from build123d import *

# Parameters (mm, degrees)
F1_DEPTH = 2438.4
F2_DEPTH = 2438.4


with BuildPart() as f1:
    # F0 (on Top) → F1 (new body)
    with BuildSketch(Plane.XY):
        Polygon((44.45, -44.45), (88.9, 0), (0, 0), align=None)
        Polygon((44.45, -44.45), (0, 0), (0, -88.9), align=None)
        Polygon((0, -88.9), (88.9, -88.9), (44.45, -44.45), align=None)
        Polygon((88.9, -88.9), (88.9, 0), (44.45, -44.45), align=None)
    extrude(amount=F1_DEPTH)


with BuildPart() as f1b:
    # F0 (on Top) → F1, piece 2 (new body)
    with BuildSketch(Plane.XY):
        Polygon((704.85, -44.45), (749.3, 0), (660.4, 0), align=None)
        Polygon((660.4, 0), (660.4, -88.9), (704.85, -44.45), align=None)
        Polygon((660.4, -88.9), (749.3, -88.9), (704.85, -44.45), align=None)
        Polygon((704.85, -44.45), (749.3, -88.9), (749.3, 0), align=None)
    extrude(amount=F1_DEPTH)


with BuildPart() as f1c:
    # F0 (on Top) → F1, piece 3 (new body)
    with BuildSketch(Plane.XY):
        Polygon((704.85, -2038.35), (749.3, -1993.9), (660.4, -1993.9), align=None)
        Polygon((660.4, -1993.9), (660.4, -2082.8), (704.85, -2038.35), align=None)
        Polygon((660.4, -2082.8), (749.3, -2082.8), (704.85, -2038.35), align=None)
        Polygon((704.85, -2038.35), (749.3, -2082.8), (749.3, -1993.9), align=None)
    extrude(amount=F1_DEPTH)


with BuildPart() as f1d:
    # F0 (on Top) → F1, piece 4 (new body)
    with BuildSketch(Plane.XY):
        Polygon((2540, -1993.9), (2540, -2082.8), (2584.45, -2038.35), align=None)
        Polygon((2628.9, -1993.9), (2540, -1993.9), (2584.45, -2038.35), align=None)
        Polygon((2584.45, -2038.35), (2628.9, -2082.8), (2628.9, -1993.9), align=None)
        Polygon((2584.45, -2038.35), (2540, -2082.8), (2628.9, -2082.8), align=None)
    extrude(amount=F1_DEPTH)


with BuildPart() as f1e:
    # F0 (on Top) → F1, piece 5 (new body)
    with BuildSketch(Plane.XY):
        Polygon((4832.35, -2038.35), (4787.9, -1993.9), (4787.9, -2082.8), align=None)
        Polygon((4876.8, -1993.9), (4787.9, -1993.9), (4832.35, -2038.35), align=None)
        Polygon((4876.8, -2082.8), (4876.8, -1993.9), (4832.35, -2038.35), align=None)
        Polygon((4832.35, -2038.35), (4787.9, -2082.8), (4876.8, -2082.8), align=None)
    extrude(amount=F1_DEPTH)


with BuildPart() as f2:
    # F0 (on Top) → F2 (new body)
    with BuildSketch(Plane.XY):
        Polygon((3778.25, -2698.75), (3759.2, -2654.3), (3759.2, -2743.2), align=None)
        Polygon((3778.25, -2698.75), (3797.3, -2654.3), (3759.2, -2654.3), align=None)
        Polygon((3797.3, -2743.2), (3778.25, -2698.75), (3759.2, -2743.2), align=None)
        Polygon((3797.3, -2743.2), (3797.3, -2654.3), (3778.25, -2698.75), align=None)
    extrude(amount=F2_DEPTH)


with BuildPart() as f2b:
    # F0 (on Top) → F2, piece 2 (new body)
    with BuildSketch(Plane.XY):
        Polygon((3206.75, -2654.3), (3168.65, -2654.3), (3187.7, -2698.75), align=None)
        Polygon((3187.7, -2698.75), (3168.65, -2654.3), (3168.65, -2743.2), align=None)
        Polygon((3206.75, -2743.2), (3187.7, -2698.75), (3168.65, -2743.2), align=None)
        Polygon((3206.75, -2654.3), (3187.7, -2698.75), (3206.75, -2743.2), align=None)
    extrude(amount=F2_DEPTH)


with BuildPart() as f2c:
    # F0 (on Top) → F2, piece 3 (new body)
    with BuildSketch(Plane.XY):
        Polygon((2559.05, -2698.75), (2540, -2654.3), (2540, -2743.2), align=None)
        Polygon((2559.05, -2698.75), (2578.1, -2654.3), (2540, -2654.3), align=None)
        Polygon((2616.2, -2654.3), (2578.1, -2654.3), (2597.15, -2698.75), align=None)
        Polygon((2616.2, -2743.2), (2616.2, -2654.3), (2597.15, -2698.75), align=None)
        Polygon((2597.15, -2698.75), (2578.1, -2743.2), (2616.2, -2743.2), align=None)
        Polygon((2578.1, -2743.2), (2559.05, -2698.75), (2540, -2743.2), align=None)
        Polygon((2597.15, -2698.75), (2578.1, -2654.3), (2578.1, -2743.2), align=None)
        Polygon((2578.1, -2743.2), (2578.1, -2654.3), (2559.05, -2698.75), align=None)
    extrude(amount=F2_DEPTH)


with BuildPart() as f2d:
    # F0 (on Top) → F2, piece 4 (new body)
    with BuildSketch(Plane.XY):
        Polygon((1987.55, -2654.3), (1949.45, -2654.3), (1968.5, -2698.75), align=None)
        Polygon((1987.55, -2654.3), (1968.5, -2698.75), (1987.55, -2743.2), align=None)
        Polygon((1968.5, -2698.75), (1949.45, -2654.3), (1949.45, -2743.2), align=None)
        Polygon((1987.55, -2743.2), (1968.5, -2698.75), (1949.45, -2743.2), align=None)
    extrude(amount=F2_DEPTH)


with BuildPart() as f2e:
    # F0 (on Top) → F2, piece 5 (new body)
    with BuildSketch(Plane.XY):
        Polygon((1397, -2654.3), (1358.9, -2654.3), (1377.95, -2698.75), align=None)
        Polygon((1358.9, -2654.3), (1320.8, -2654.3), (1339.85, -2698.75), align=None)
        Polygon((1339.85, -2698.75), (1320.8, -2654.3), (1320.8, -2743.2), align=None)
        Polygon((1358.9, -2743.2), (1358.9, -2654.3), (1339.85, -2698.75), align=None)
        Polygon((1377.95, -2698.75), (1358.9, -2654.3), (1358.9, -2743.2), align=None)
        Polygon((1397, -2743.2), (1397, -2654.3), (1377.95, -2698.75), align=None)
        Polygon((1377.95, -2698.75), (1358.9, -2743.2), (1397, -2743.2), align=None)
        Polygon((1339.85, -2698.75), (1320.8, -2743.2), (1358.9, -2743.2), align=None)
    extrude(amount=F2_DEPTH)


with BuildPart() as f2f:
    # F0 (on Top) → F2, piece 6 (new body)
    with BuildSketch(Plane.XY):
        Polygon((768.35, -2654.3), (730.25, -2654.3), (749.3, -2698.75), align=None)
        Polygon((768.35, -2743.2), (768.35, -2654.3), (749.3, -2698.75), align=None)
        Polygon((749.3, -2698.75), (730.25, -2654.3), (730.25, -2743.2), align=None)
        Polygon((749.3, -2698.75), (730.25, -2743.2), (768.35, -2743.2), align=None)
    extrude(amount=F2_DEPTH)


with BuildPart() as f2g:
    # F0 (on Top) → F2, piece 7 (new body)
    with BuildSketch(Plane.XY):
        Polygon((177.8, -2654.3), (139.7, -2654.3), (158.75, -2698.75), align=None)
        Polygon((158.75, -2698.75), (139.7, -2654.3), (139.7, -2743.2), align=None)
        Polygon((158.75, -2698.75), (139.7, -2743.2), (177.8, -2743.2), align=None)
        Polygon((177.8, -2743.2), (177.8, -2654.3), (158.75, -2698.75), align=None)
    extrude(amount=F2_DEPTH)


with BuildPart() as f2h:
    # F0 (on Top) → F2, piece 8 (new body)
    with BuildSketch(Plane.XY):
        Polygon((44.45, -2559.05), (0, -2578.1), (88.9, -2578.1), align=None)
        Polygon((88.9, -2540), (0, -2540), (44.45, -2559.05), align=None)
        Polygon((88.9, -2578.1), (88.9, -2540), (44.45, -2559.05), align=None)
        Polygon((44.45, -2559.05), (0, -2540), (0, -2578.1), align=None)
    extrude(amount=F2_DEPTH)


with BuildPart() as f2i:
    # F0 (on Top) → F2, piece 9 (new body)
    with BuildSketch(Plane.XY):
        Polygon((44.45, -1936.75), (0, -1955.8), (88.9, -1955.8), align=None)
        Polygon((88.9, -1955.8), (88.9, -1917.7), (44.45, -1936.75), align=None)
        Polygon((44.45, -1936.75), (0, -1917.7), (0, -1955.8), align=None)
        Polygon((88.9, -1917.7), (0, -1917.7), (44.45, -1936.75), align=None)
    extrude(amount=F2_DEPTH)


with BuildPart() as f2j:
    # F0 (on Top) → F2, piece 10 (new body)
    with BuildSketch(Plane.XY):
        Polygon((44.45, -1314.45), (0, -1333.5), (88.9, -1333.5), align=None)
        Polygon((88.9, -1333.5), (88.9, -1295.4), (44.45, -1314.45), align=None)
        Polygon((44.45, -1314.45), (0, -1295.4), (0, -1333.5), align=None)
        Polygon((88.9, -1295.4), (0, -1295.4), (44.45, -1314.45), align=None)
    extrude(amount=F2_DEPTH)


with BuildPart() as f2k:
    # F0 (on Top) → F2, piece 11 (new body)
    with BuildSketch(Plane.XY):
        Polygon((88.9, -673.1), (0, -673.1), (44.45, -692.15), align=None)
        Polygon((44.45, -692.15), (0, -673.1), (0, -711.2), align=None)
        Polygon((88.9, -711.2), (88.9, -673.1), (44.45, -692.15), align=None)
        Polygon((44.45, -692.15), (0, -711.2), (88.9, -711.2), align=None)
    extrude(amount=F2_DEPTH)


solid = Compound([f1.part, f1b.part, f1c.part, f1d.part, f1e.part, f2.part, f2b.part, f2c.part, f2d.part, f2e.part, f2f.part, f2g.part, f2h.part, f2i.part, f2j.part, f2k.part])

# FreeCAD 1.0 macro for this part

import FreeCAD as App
import Part
import Sketcher

V = App.Vector
Q = App.Units.Quantity

doc = App.newDocument("Part")
params = doc.addObject("Spreadsheet::Sheet", "Params")
for row, (alias, value) in enumerate([
    ("sketch1_width", "3.5 in"),
    ("pad1_length", "96 in"),
    ("sketch2_width", "3.5 in"),
    ("pad2_length", "96 in"),
    ("sketch3_width", "3.5 in"),
    ("pad3_length", "96 in"),
    ("sketch4_width", "3.5 in"),
    ("pad4_length", "96 in"),
    ("sketch5_width", "3.5 in"),
    ("pad5_length", "96 in"),
    ("sketch6_width", "1.5 in"),
    ("sketch6_height", "3.5 in"),
    ("pad6_length", "96 in"),
    ("sketch7_width", "1.5 in"),
    ("sketch7_height", "3.5 in"),
    ("pad7_length", "96 in"),
    ("sketch8_width", "3 in"),
    ("sketch8_height", "3.5 in"),
    ("pad8_length", "96 in"),
    ("sketch9_width", "1.5 in"),
    ("sketch9_height", "3.5 in"),
    ("pad9_length", "96 in"),
    ("sketch10_width", "3 in"),
    ("sketch10_height", "3.5 in"),
    ("pad10_length", "96 in"),
    ("sketch11_width", "1.5 in"),
    ("sketch11_height", "3.5 in"),
    ("pad11_length", "96 in"),
    ("sketch12_width", "1.5 in"),
    ("sketch12_height", "3.5 in"),
    ("pad12_length", "96 in"),
    ("sketch13_width", "3.5 in"),
    ("sketch13_height", "1.5 in"),
    ("pad13_length", "96 in"),
    ("sketch14_width", "3.5 in"),
    ("sketch14_height", "1.5 in"),
    ("pad14_length", "96 in"),
    ("sketch15_width", "3.5 in"),
    ("sketch15_height", "1.5 in"),
    ("pad15_length", "96 in"),
    ("sketch16_width", "3.5 in"),
    ("sketch16_height", "1.5 in"),
    ("pad16_length", "96 in"),
], start=1):
    params.set(f"A{row}", alias)
    params.set(f"B{row}", "=" + value)
    params.setAlias(f"B{row}", alias)

body = doc.addObject("PartDesign::Body", "Body")

# Sketch on XY plane
sketch1 = doc.addObject("Sketcher::SketchObject", "Sketch")
body.addObject(sketch1)
sketch1.AttachmentSupport = (doc.XY_Plane, [""])
sketch1.MapMode = "FlatFace"
sketch1.addGeometry([
    Part.LineSegment(V(89, 0, 0), V(0, 0, 0)),
    Part.LineSegment(V(0, 0, 0), V(0, -89, 0)),
    Part.LineSegment(V(0, -89, 0), V(89, -89, 0)),
    Part.LineSegment(V(89, -89, 0), V(89, 0, 0)),
], False)
sketch1.addConstraint([
    Sketcher.Constraint("Coincident", 0, 2, 1, 1),
    Sketcher.Constraint("Coincident", 1, 2, 2, 1),
    Sketcher.Constraint("Coincident", 2, 2, 3, 1),
    Sketcher.Constraint("Coincident", 3, 2, 0, 1),
    Sketcher.Constraint("Horizontal", 0),
    Sketcher.Constraint("Vertical", 1),
    Sketcher.Constraint("Horizontal", 2),
    Sketcher.Constraint("Vertical", 3),
    Sketcher.Constraint("Coincident", 0, 2, -1, 1),
    Sketcher.Constraint("Equal", 2, 1),
    Sketcher.Constraint("DistanceX", 0, 2, 0, 1, Q("3.5 in")),
])
sketch1.setExpression("Constraints[10]", "Params.sketch1_width")
pad1 = doc.addObject("PartDesign::Pad", "Pad")
body.addObject(pad1)
pad1.Profile = sketch1
pad1.setExpression("Length", "Params.pad1_length")
body2 = doc.addObject("PartDesign::Body", "Body001")

# Sketch on XY plane
sketch2 = doc.addObject("Sketcher::SketchObject", "Sketch001")
body2.addObject(sketch2)
sketch2.AttachmentSupport = (doc.getObject("XY_Plane001"), [""])
sketch2.MapMode = "FlatFace"
sketch2.addGeometry([
    Part.LineSegment(V(749, 0, 0), V(660, 0, 0)),
    Part.LineSegment(V(660, 0, 0), V(660, -89, 0)),
    Part.LineSegment(V(660, -89, 0), V(749, -89, 0)),
    Part.LineSegment(V(749, -89, 0), V(749, 0, 0)),
], False)
sketch2.addConstraint([
    Sketcher.Constraint("Coincident", 0, 2, 1, 1),
    Sketcher.Constraint("Coincident", 1, 2, 2, 1),
    Sketcher.Constraint("Coincident", 2, 2, 3, 1),
    Sketcher.Constraint("Coincident", 3, 2, 0, 1),
    Sketcher.Constraint("Horizontal", 0),
    Sketcher.Constraint("Vertical", 1),
    Sketcher.Constraint("Horizontal", 2),
    Sketcher.Constraint("Vertical", 3),
    Sketcher.Constraint("PointOnObject", 0, 2, -1),
    Sketcher.Constraint("Equal", 2, 1),
    Sketcher.Constraint("DistanceX", 0, 2, 0, 1, Q("3.5 in")),
    Sketcher.Constraint("DistanceX", -1, 1, 0, 2, Q("26 in")),
])
sketch2.setExpression("Constraints[10]", "Params.sketch2_width")
pad2 = doc.addObject("PartDesign::Pad", "Pad001")
body2.addObject(pad2)
pad2.Profile = sketch2
pad2.setExpression("Length", "Params.pad2_length")
body3 = doc.addObject("PartDesign::Body", "Body002")

# Sketch on XY plane
sketch3 = doc.addObject("Sketcher::SketchObject", "Sketch002")
body3.addObject(sketch3)
sketch3.AttachmentSupport = (doc.getObject("XY_Plane002"), [""])
sketch3.MapMode = "FlatFace"
sketch3.addGeometry([
    Part.LineSegment(V(749, -1994, 0), V(660, -1994, 0)),
    Part.LineSegment(V(660, -1994, 0), V(660, -2083, 0)),
    Part.LineSegment(V(660, -2083, 0), V(749, -2083, 0)),
    Part.LineSegment(V(749, -2083, 0), V(749, -1994, 0)),
], False)
sketch3.addConstraint([
    Sketcher.Constraint("Coincident", 0, 2, 1, 1),
    Sketcher.Constraint("Coincident", 1, 2, 2, 1),
    Sketcher.Constraint("Coincident", 2, 2, 3, 1),
    Sketcher.Constraint("Coincident", 3, 2, 0, 1),
    Sketcher.Constraint("Horizontal", 0),
    Sketcher.Constraint("Vertical", 1),
    Sketcher.Constraint("Horizontal", 2),
    Sketcher.Constraint("Vertical", 3),
    Sketcher.Constraint("Equal", 2, 1),
    Sketcher.Constraint("DistanceX", 0, 2, 0, 1, Q("3.5 in")),
    Sketcher.Constraint("DistanceX", -1, 1, 0, 2, Q("26 in")),
    Sketcher.Constraint("DistanceY", 1, 2, -1, 1, Q("82 in")),
])
sketch3.setExpression("Constraints[9]", "Params.sketch3_width")
pad3 = doc.addObject("PartDesign::Pad", "Pad002")
body3.addObject(pad3)
pad3.Profile = sketch3
pad3.setExpression("Length", "Params.pad3_length")
body4 = doc.addObject("PartDesign::Body", "Body003")

# Sketch on XY plane
sketch4 = doc.addObject("Sketcher::SketchObject", "Sketch003")
body4.addObject(sketch4)
sketch4.AttachmentSupport = (doc.getObject("XY_Plane003"), [""])
sketch4.MapMode = "FlatFace"
sketch4.addGeometry([
    Part.LineSegment(V(2540, -1994, 0), V(2540, -2083, 0)),
    Part.LineSegment(V(2540, -2083, 0), V(2629, -2083, 0)),
    Part.LineSegment(V(2629, -2083, 0), V(2629, -1994, 0)),
    Part.LineSegment(V(2629, -1994, 0), V(2540, -1994, 0)),
], False)
sketch4.addConstraint([
    Sketcher.Constraint("Coincident", 0, 2, 1, 1),
    Sketcher.Constraint("Coincident", 1, 2, 2, 1),
    Sketcher.Constraint("Coincident", 2, 2, 3, 1),
    Sketcher.Constraint("Coincident", 3, 2, 0, 1),
    Sketcher.Constraint("Vertical", 0),
    Sketcher.Constraint("Horizontal", 1),
    Sketcher.Constraint("Vertical", 2),
    Sketcher.Constraint("Horizontal", 3),
    Sketcher.Constraint("Equal", 3, 0),
    Sketcher.Constraint("DistanceX", 1, 1, 1, 2, Q("3.5 in")),
    Sketcher.Constraint("DistanceX", -1, 1, 0, 2, Q("100 in")),
    Sketcher.Constraint("DistanceY", 0, 2, -1, 1, Q("82 in")),
])
sketch4.setExpression("Constraints[9]", "Params.sketch4_width")
pad4 = doc.addObject("PartDesign::Pad", "Pad003")
body4.addObject(pad4)
pad4.Profile = sketch4
pad4.setExpression("Length", "Params.pad4_length")
body5 = doc.addObject("PartDesign::Body", "Body004")

# Sketch on XY plane
sketch5 = doc.addObject("Sketcher::SketchObject", "Sketch004")
body5.addObject(sketch5)
sketch5.AttachmentSupport = (doc.getObject("XY_Plane004"), [""])
sketch5.MapMode = "FlatFace"
sketch5.addGeometry([
    Part.LineSegment(V(4788, -1994, 0), V(4788, -2083, 0)),
    Part.LineSegment(V(4788, -2083, 0), V(4877, -2083, 0)),
    Part.LineSegment(V(4877, -2083, 0), V(4877, -1994, 0)),
    Part.LineSegment(V(4877, -1994, 0), V(4788, -1994, 0)),
], False)
sketch5.addConstraint([
    Sketcher.Constraint("Coincident", 0, 2, 1, 1),
    Sketcher.Constraint("Coincident", 1, 2, 2, 1),
    Sketcher.Constraint("Coincident", 2, 2, 3, 1),
    Sketcher.Constraint("Coincident", 3, 2, 0, 1),
    Sketcher.Constraint("Vertical", 0),
    Sketcher.Constraint("Horizontal", 1),
    Sketcher.Constraint("Vertical", 2),
    Sketcher.Constraint("Horizontal", 3),
    Sketcher.Constraint("Equal", 3, 0),
    Sketcher.Constraint("DistanceX", 1, 1, 1, 2, Q("3.5 in")),
    Sketcher.Constraint("DistanceY", 0, 2, -1, 1, Q("82 in")),
    Sketcher.Constraint("DistanceX", -1, 1, 1, 2, Q("192 in")),
])
sketch5.setExpression("Constraints[9]", "Params.sketch5_width")
pad5 = doc.addObject("PartDesign::Pad", "Pad004")
body5.addObject(pad5)
pad5.Profile = sketch5
pad5.setExpression("Length", "Params.pad5_length")
body6 = doc.addObject("PartDesign::Body", "Body005")

# Sketch on XY plane
sketch6 = doc.addObject("Sketcher::SketchObject", "Sketch005")
body6.addObject(sketch6)
sketch6.AttachmentSupport = (doc.getObject("XY_Plane005"), [""])
sketch6.MapMode = "FlatFace"
sketch6.addGeometry([
    Part.LineSegment(V(3759, -2654, 0), V(3759, -2743, 0)),
    Part.LineSegment(V(3759, -2743, 0), V(3797, -2743, 0)),
    Part.LineSegment(V(3797, -2743, 0), V(3797, -2654, 0)),
    Part.LineSegment(V(3797, -2654, 0), V(3759, -2654, 0)),
], False)
sketch6.addConstraint([
    Sketcher.Constraint("Coincident", 0, 2, 1, 1),
    Sketcher.Constraint("Coincident", 1, 2, 2, 1),
    Sketcher.Constraint("Coincident", 2, 2, 3, 1),
    Sketcher.Constraint("Coincident", 3, 2, 0, 1),
    Sketcher.Constraint("Vertical", 0),
    Sketcher.Constraint("Horizontal", 1),
    Sketcher.Constraint("Vertical", 2),
    Sketcher.Constraint("Horizontal", 3),
    Sketcher.Constraint("DistanceX", 1, 1, 1, 2, Q("1.5 in")),
    Sketcher.Constraint("DistanceY", 0, 2, 0, 1, Q("3.5 in")),
    Sketcher.Constraint("DistanceX", -1, 1, 0, 2, Q("148 in")),
    Sketcher.Constraint("DistanceY", 0, 2, -1, 1, Q("108 in")),
])
sketch6.setExpression("Constraints[8]", "Params.sketch6_width")
sketch6.setExpression("Constraints[9]", "Params.sketch6_height")
pad6 = doc.addObject("PartDesign::Pad", "Pad005")
body6.addObject(pad6)
pad6.Profile = sketch6
pad6.setExpression("Length", "Params.pad6_length")
body7 = doc.addObject("PartDesign::Body", "Body006")

# Sketch on XY plane
sketch7 = doc.addObject("Sketcher::SketchObject", "Sketch006")
body7.addObject(sketch7)
sketch7.AttachmentSupport = (doc.getObject("XY_Plane006"), [""])
sketch7.MapMode = "FlatFace"
sketch7.addGeometry([
    Part.LineSegment(V(3207, -2654, 0), V(3169, -2654, 0)),
    Part.LineSegment(V(3169, -2654, 0), V(3169, -2743, 0)),
    Part.LineSegment(V(3169, -2743, 0), V(3207, -2743, 0)),
    Part.LineSegment(V(3207, -2743, 0), V(3207, -2654, 0)),
], False)
sketch7.addConstraint([
    Sketcher.Constraint("Coincident", 0, 2, 1, 1),
    Sketcher.Constraint("Coincident", 1, 2, 2, 1),
    Sketcher.Constraint("Coincident", 2, 2, 3, 1),
    Sketcher.Constraint("Coincident", 3, 2, 0, 1),
    Sketcher.Constraint("Horizontal", 0),
    Sketcher.Constraint("Vertical", 1),
    Sketcher.Constraint("Horizontal", 2),
    Sketcher.Constraint("Vertical", 3),
    Sketcher.Constraint("DistanceX", 0, 2, 0, 1, Q("1.5 in")),
    Sketcher.Constraint("DistanceY", 1, 2, 1, 1, Q("3.5 in")),
    Sketcher.Constraint("DistanceY", 1, 2, -1, 1, Q("108 in")),
    Sketcher.Constraint("DistanceX", -1, 1, 0, 2, Q("124.75 in")),
])
sketch7.setExpression("Constraints[8]", "Params.sketch7_width")
sketch7.setExpression("Constraints[9]", "Params.sketch7_height")
pad7 = doc.addObject("PartDesign::Pad", "Pad006")
body7.addObject(pad7)
pad7.Profile = sketch7
pad7.setExpression("Length", "Params.pad7_length")
body8 = doc.addObject("PartDesign::Body", "Body007")

# Sketch on XY plane
sketch8 = doc.addObject("Sketcher::SketchObject", "Sketch007")
body8.addObject(sketch8)
sketch8.AttachmentSupport = (doc.getObject("XY_Plane007"), [""])
sketch8.MapMode = "FlatFace"
sketch8.addGeometry([
    Part.LineSegment(V(2540, -2654, 0), V(2540, -2743, 0)),
    Part.LineSegment(V(2540, -2743, 0), V(2616, -2743, 0)),
    Part.LineSegment(V(2616, -2743, 0), V(2616, -2654, 0)),
    Part.LineSegment(V(2616, -2654, 0), V(2540, -2654, 0)),
], False)
sketch8.addConstraint([
    Sketcher.Constraint("Coincident", 0, 2, 1, 1),
    Sketcher.Constraint("Coincident", 1, 2, 2, 1),
    Sketcher.Constraint("Coincident", 2, 2, 3, 1),
    Sketcher.Constraint("Coincident", 3, 2, 0, 1),
    Sketcher.Constraint("Vertical", 0),
    Sketcher.Constraint("Horizontal", 1),
    Sketcher.Constraint("Vertical", 2),
    Sketcher.Constraint("Horizontal", 3),
    Sketcher.Constraint("DistanceX", 1, 1, 1, 2, Q("3 in")),
    Sketcher.Constraint("DistanceY", 0, 2, 0, 1, Q("3.5 in")),
    Sketcher.Constraint("DistanceX", -1, 1, 0, 2, Q("100 in")),
    Sketcher.Constraint("DistanceY", 0, 2, -1, 1, Q("108 in")),
])
sketch8.setExpression("Constraints[8]", "Params.sketch8_width")
sketch8.setExpression("Constraints[9]", "Params.sketch8_height")
pad8 = doc.addObject("PartDesign::Pad", "Pad007")
body8.addObject(pad8)
pad8.Profile = sketch8
pad8.setExpression("Length", "Params.pad8_length")
body9 = doc.addObject("PartDesign::Body", "Body008")

# Sketch on XY plane
sketch9 = doc.addObject("Sketcher::SketchObject", "Sketch008")
body9.addObject(sketch9)
sketch9.AttachmentSupport = (doc.getObject("XY_Plane008"), [""])
sketch9.MapMode = "FlatFace"
sketch9.addGeometry([
    Part.LineSegment(V(1988, -2654, 0), V(1949, -2654, 0)),
    Part.LineSegment(V(1949, -2654, 0), V(1949, -2743, 0)),
    Part.LineSegment(V(1949, -2743, 0), V(1988, -2743, 0)),
    Part.LineSegment(V(1988, -2743, 0), V(1988, -2654, 0)),
], False)
sketch9.addConstraint([
    Sketcher.Constraint("Coincident", 0, 2, 1, 1),
    Sketcher.Constraint("Coincident", 1, 2, 2, 1),
    Sketcher.Constraint("Coincident", 2, 2, 3, 1),
    Sketcher.Constraint("Coincident", 3, 2, 0, 1),
    Sketcher.Constraint("Horizontal", 0),
    Sketcher.Constraint("Vertical", 1),
    Sketcher.Constraint("Horizontal", 2),
    Sketcher.Constraint("Vertical", 3),
    Sketcher.Constraint("DistanceX", 0, 2, 0, 1, Q("1.5 in")),
    Sketcher.Constraint("DistanceY", 1, 2, 1, 1, Q("3.5 in")),
    Sketcher.Constraint("DistanceY", 1, 2, -1, 1, Q("108 in")),
    Sketcher.Constraint("DistanceX", -1, 1, 0, 2, Q("76.75 in")),
])
sketch9.setExpression("Constraints[8]", "Params.sketch9_width")
sketch9.setExpression("Constraints[9]", "Params.sketch9_height")
pad9 = doc.addObject("PartDesign::Pad", "Pad008")
body9.addObject(pad9)
pad9.Profile = sketch9
pad9.setExpression("Length", "Params.pad9_length")
body10 = doc.addObject("PartDesign::Body", "Body009")

# Sketch on XY plane
sketch10 = doc.addObject("Sketcher::SketchObject", "Sketch009")
body10.addObject(sketch10)
sketch10.AttachmentSupport = (doc.getObject("XY_Plane009"), [""])
sketch10.MapMode = "FlatFace"
sketch10.addGeometry([
    Part.LineSegment(V(1397, -2654, 0), V(1321, -2654, 0)),
    Part.LineSegment(V(1321, -2654, 0), V(1321, -2743, 0)),
    Part.LineSegment(V(1321, -2743, 0), V(1397, -2743, 0)),
    Part.LineSegment(V(1397, -2743, 0), V(1397, -2654, 0)),
], False)
sketch10.addConstraint([
    Sketcher.Constraint("Coincident", 0, 2, 1, 1),
    Sketcher.Constraint("Coincident", 1, 2, 2, 1),
    Sketcher.Constraint("Coincident", 2, 2, 3, 1),
    Sketcher.Constraint("Coincident", 3, 2, 0, 1),
    Sketcher.Constraint("Horizontal", 0),
    Sketcher.Constraint("Vertical", 1),
    Sketcher.Constraint("Horizontal", 2),
    Sketcher.Constraint("Vertical", 3),
    Sketcher.Constraint("DistanceX", 0, 2, 0, 1, Q("3 in")),
    Sketcher.Constraint("DistanceY", 1, 2, 1, 1, Q("3.5 in")),
    Sketcher.Constraint("DistanceX", -1, 1, 0, 2, Q("52 in")),
    Sketcher.Constraint("DistanceY", 1, 2, -1, 1, Q("108 in")),
])
sketch10.setExpression("Constraints[8]", "Params.sketch10_width")
sketch10.setExpression("Constraints[9]", "Params.sketch10_height")
pad10 = doc.addObject("PartDesign::Pad", "Pad009")
body10.addObject(pad10)
pad10.Profile = sketch10
pad10.setExpression("Length", "Params.pad10_length")
body11 = doc.addObject("PartDesign::Body", "Body010")

# Sketch on XY plane
sketch11 = doc.addObject("Sketcher::SketchObject", "Sketch010")
body11.addObject(sketch11)
sketch11.AttachmentSupport = (doc.getObject("XY_Plane010"), [""])
sketch11.MapMode = "FlatFace"
sketch11.addGeometry([
    Part.LineSegment(V(768, -2654, 0), V(730, -2654, 0)),
    Part.LineSegment(V(730, -2654, 0), V(730, -2743, 0)),
    Part.LineSegment(V(730, -2743, 0), V(768, -2743, 0)),
    Part.LineSegment(V(768, -2743, 0), V(768, -2654, 0)),
], False)
sketch11.addConstraint([
    Sketcher.Constraint("Coincident", 0, 2, 1, 1),
    Sketcher.Constraint("Coincident", 1, 2, 2, 1),
    Sketcher.Constraint("Coincident", 2, 2, 3, 1),
    Sketcher.Constraint("Coincident", 3, 2, 0, 1),
    Sketcher.Constraint("Horizontal", 0),
    Sketcher.Constraint("Vertical", 1),
    Sketcher.Constraint("Horizontal", 2),
    Sketcher.Constraint("Vertical", 3),
    Sketcher.Constraint("DistanceX", 0, 2, 0, 1, Q("1.5 in")),
    Sketcher.Constraint("DistanceY", 1, 2, 1, 1, Q("3.5 in")),
    Sketcher.Constraint("DistanceY", 1, 2, -1, 1, Q("108 in")),
    Sketcher.Constraint("DistanceX", -1, 1, 0, 2, Q("28.75 in")),
])
sketch11.setExpression("Constraints[8]", "Params.sketch11_width")
sketch11.setExpression("Constraints[9]", "Params.sketch11_height")
pad11 = doc.addObject("PartDesign::Pad", "Pad010")
body11.addObject(pad11)
pad11.Profile = sketch11
pad11.setExpression("Length", "Params.pad11_length")
body12 = doc.addObject("PartDesign::Body", "Body011")

# Sketch on XY plane
sketch12 = doc.addObject("Sketcher::SketchObject", "Sketch011")
body12.addObject(sketch12)
sketch12.AttachmentSupport = (doc.getObject("XY_Plane011"), [""])
sketch12.MapMode = "FlatFace"
sketch12.addGeometry([
    Part.LineSegment(V(178, -2654, 0), V(140, -2654, 0)),
    Part.LineSegment(V(140, -2654, 0), V(140, -2743, 0)),
    Part.LineSegment(V(140, -2743, 0), V(178, -2743, 0)),
    Part.LineSegment(V(178, -2743, 0), V(178, -2654, 0)),
], False)
sketch12.addConstraint([
    Sketcher.Constraint("Coincident", 0, 2, 1, 1),
    Sketcher.Constraint("Coincident", 1, 2, 2, 1),
    Sketcher.Constraint("Coincident", 2, 2, 3, 1),
    Sketcher.Constraint("Coincident", 3, 2, 0, 1),
    Sketcher.Constraint("Horizontal", 0),
    Sketcher.Constraint("Vertical", 1),
    Sketcher.Constraint("Horizontal", 2),
    Sketcher.Constraint("Vertical", 3),
    Sketcher.Constraint("DistanceX", 0, 2, 0, 1, Q("1.5 in")),
    Sketcher.Constraint("DistanceY", 1, 2, 1, 1, Q("3.5 in")),
    Sketcher.Constraint("DistanceY", 1, 2, -1, 1, Q("108 in")),
    Sketcher.Constraint("DistanceX", -1, 1, 2, 2, Q("7 in")),
])
sketch12.setExpression("Constraints[8]", "Params.sketch12_width")
sketch12.setExpression("Constraints[9]", "Params.sketch12_height")
pad12 = doc.addObject("PartDesign::Pad", "Pad011")
body12.addObject(pad12)
pad12.Profile = sketch12
pad12.setExpression("Length", "Params.pad12_length")
body13 = doc.addObject("PartDesign::Body", "Body012")

# Sketch on XY plane
sketch13 = doc.addObject("Sketcher::SketchObject", "Sketch012")
body13.addObject(sketch13)
sketch13.AttachmentSupport = (doc.getObject("XY_Plane012"), [""])
sketch13.MapMode = "FlatFace"
sketch13.addGeometry([
    Part.LineSegment(V(0, -2578, 0), V(89, -2578, 0)),
    Part.LineSegment(V(89, -2578, 0), V(89, -2540, 0)),
    Part.LineSegment(V(89, -2540, 0), V(0, -2540, 0)),
    Part.LineSegment(V(0, -2540, 0), V(0, -2578, 0)),
], False)
sketch13.addConstraint([
    Sketcher.Constraint("Coincident", 0, 2, 1, 1),
    Sketcher.Constraint("Coincident", 1, 2, 2, 1),
    Sketcher.Constraint("Coincident", 2, 2, 3, 1),
    Sketcher.Constraint("Coincident", 3, 2, 0, 1),
    Sketcher.Constraint("Horizontal", 0),
    Sketcher.Constraint("Vertical", 1),
    Sketcher.Constraint("Horizontal", 2),
    Sketcher.Constraint("Vertical", 3),
    Sketcher.Constraint("PointOnObject", 2, 2, -2),
    Sketcher.Constraint("DistanceX", 0, 1, 0, 2, Q("3.5 in")),
    Sketcher.Constraint("DistanceY", 1, 1, 1, 2, Q("1.5 in")),
    Sketcher.Constraint("DistanceY", 1, 2, -1, 1, Q("100 in")),
])
sketch13.setExpression("Constraints[9]", "Params.sketch13_width")
sketch13.setExpression("Constraints[10]", "Params.sketch13_height")
pad13 = doc.addObject("PartDesign::Pad", "Pad012")
body13.addObject(pad13)
pad13.Profile = sketch13
pad13.setExpression("Length", "Params.pad13_length")
body14 = doc.addObject("PartDesign::Body", "Body013")

# Sketch on XY plane
sketch14 = doc.addObject("Sketcher::SketchObject", "Sketch013")
body14.addObject(sketch14)
sketch14.AttachmentSupport = (doc.getObject("XY_Plane013"), [""])
sketch14.MapMode = "FlatFace"
sketch14.addGeometry([
    Part.LineSegment(V(0, -1956, 0), V(89, -1956, 0)),
    Part.LineSegment(V(89, -1956, 0), V(89, -1918, 0)),
    Part.LineSegment(V(89, -1918, 0), V(0, -1918, 0)),
    Part.LineSegment(V(0, -1918, 0), V(0, -1956, 0)),
], False)
sketch14.addConstraint([
    Sketcher.Constraint("Coincident", 0, 2, 1, 1),
    Sketcher.Constraint("Coincident", 1, 2, 2, 1),
    Sketcher.Constraint("Coincident", 2, 2, 3, 1),
    Sketcher.Constraint("Coincident", 3, 2, 0, 1),
    Sketcher.Constraint("Horizontal", 0),
    Sketcher.Constraint("Vertical", 1),
    Sketcher.Constraint("Horizontal", 2),
    Sketcher.Constraint("Vertical", 3),
    Sketcher.Constraint("PointOnObject", 2, 2, -2),
    Sketcher.Constraint("DistanceX", 0, 1, 0, 2, Q("3.5 in")),
    Sketcher.Constraint("DistanceY", 1, 1, 1, 2, Q("1.5 in")),
    Sketcher.Constraint("DistanceY", 0, 2, -1, 1, Q("77 in")),
])
sketch14.setExpression("Constraints[9]", "Params.sketch14_width")
sketch14.setExpression("Constraints[10]", "Params.sketch14_height")
pad14 = doc.addObject("PartDesign::Pad", "Pad013")
body14.addObject(pad14)
pad14.Profile = sketch14
pad14.setExpression("Length", "Params.pad14_length")
body15 = doc.addObject("PartDesign::Body", "Body014")

# Sketch on XY plane
sketch15 = doc.addObject("Sketcher::SketchObject", "Sketch014")
body15.addObject(sketch15)
sketch15.AttachmentSupport = (doc.getObject("XY_Plane014"), [""])
sketch15.MapMode = "FlatFace"
sketch15.addGeometry([
    Part.LineSegment(V(0, -1334, 0), V(89, -1334, 0)),
    Part.LineSegment(V(89, -1334, 0), V(89, -1295, 0)),
    Part.LineSegment(V(89, -1295, 0), V(0, -1295, 0)),
    Part.LineSegment(V(0, -1295, 0), V(0, -1334, 0)),
], False)
sketch15.addConstraint([
    Sketcher.Constraint("Coincident", 0, 2, 1, 1),
    Sketcher.Constraint("Coincident", 1, 2, 2, 1),
    Sketcher.Constraint("Coincident", 2, 2, 3, 1),
    Sketcher.Constraint("Coincident", 3, 2, 0, 1),
    Sketcher.Constraint("Horizontal", 0),
    Sketcher.Constraint("Vertical", 1),
    Sketcher.Constraint("Horizontal", 2),
    Sketcher.Constraint("Vertical", 3),
    Sketcher.Constraint("PointOnObject", 2, 2, -2),
    Sketcher.Constraint("DistanceX", 0, 1, 0, 2, Q("3.5 in")),
    Sketcher.Constraint("DistanceY", 1, 1, 1, 2, Q("1.5 in")),
    Sketcher.Constraint("DistanceY", 1, 2, -1, 1, Q("51 in")),
])
sketch15.setExpression("Constraints[9]", "Params.sketch15_width")
sketch15.setExpression("Constraints[10]", "Params.sketch15_height")
pad15 = doc.addObject("PartDesign::Pad", "Pad014")
body15.addObject(pad15)
pad15.Profile = sketch15
pad15.setExpression("Length", "Params.pad15_length")
body16 = doc.addObject("PartDesign::Body", "Body015")

# Sketch on XY plane
sketch16 = doc.addObject("Sketcher::SketchObject", "Sketch015")
body16.addObject(sketch16)
sketch16.AttachmentSupport = (doc.getObject("XY_Plane015"), [""])
sketch16.MapMode = "FlatFace"
sketch16.addGeometry([
    Part.LineSegment(V(89, -673, 0), V(0, -673, 0)),
    Part.LineSegment(V(0, -673, 0), V(0, -711, 0)),
    Part.LineSegment(V(0, -711, 0), V(89, -711, 0)),
    Part.LineSegment(V(89, -711, 0), V(89, -673, 0)),
], False)
sketch16.addConstraint([
    Sketcher.Constraint("Coincident", 0, 2, 1, 1),
    Sketcher.Constraint("Coincident", 1, 2, 2, 1),
    Sketcher.Constraint("Coincident", 2, 2, 3, 1),
    Sketcher.Constraint("Coincident", 3, 2, 0, 1),
    Sketcher.Constraint("Horizontal", 0),
    Sketcher.Constraint("Vertical", 1),
    Sketcher.Constraint("Horizontal", 2),
    Sketcher.Constraint("Vertical", 3),
    Sketcher.Constraint("PointOnObject", 0, 2, -2),
    Sketcher.Constraint("DistanceX", 0, 2, 0, 1, Q("3.5 in")),
    Sketcher.Constraint("DistanceY", 1, 2, 1, 1, Q("1.5 in")),
    Sketcher.Constraint("DistanceY", 1, 2, -1, 1, Q("28 in")),
])
sketch16.setExpression("Constraints[9]", "Params.sketch16_width")
sketch16.setExpression("Constraints[10]", "Params.sketch16_height")
pad16 = doc.addObject("PartDesign::Pad", "Pad015")
body16.addObject(pad16)
pad16.Profile = sketch16
pad16.setExpression("Length", "Params.pad16_length")

doc.recompute()
